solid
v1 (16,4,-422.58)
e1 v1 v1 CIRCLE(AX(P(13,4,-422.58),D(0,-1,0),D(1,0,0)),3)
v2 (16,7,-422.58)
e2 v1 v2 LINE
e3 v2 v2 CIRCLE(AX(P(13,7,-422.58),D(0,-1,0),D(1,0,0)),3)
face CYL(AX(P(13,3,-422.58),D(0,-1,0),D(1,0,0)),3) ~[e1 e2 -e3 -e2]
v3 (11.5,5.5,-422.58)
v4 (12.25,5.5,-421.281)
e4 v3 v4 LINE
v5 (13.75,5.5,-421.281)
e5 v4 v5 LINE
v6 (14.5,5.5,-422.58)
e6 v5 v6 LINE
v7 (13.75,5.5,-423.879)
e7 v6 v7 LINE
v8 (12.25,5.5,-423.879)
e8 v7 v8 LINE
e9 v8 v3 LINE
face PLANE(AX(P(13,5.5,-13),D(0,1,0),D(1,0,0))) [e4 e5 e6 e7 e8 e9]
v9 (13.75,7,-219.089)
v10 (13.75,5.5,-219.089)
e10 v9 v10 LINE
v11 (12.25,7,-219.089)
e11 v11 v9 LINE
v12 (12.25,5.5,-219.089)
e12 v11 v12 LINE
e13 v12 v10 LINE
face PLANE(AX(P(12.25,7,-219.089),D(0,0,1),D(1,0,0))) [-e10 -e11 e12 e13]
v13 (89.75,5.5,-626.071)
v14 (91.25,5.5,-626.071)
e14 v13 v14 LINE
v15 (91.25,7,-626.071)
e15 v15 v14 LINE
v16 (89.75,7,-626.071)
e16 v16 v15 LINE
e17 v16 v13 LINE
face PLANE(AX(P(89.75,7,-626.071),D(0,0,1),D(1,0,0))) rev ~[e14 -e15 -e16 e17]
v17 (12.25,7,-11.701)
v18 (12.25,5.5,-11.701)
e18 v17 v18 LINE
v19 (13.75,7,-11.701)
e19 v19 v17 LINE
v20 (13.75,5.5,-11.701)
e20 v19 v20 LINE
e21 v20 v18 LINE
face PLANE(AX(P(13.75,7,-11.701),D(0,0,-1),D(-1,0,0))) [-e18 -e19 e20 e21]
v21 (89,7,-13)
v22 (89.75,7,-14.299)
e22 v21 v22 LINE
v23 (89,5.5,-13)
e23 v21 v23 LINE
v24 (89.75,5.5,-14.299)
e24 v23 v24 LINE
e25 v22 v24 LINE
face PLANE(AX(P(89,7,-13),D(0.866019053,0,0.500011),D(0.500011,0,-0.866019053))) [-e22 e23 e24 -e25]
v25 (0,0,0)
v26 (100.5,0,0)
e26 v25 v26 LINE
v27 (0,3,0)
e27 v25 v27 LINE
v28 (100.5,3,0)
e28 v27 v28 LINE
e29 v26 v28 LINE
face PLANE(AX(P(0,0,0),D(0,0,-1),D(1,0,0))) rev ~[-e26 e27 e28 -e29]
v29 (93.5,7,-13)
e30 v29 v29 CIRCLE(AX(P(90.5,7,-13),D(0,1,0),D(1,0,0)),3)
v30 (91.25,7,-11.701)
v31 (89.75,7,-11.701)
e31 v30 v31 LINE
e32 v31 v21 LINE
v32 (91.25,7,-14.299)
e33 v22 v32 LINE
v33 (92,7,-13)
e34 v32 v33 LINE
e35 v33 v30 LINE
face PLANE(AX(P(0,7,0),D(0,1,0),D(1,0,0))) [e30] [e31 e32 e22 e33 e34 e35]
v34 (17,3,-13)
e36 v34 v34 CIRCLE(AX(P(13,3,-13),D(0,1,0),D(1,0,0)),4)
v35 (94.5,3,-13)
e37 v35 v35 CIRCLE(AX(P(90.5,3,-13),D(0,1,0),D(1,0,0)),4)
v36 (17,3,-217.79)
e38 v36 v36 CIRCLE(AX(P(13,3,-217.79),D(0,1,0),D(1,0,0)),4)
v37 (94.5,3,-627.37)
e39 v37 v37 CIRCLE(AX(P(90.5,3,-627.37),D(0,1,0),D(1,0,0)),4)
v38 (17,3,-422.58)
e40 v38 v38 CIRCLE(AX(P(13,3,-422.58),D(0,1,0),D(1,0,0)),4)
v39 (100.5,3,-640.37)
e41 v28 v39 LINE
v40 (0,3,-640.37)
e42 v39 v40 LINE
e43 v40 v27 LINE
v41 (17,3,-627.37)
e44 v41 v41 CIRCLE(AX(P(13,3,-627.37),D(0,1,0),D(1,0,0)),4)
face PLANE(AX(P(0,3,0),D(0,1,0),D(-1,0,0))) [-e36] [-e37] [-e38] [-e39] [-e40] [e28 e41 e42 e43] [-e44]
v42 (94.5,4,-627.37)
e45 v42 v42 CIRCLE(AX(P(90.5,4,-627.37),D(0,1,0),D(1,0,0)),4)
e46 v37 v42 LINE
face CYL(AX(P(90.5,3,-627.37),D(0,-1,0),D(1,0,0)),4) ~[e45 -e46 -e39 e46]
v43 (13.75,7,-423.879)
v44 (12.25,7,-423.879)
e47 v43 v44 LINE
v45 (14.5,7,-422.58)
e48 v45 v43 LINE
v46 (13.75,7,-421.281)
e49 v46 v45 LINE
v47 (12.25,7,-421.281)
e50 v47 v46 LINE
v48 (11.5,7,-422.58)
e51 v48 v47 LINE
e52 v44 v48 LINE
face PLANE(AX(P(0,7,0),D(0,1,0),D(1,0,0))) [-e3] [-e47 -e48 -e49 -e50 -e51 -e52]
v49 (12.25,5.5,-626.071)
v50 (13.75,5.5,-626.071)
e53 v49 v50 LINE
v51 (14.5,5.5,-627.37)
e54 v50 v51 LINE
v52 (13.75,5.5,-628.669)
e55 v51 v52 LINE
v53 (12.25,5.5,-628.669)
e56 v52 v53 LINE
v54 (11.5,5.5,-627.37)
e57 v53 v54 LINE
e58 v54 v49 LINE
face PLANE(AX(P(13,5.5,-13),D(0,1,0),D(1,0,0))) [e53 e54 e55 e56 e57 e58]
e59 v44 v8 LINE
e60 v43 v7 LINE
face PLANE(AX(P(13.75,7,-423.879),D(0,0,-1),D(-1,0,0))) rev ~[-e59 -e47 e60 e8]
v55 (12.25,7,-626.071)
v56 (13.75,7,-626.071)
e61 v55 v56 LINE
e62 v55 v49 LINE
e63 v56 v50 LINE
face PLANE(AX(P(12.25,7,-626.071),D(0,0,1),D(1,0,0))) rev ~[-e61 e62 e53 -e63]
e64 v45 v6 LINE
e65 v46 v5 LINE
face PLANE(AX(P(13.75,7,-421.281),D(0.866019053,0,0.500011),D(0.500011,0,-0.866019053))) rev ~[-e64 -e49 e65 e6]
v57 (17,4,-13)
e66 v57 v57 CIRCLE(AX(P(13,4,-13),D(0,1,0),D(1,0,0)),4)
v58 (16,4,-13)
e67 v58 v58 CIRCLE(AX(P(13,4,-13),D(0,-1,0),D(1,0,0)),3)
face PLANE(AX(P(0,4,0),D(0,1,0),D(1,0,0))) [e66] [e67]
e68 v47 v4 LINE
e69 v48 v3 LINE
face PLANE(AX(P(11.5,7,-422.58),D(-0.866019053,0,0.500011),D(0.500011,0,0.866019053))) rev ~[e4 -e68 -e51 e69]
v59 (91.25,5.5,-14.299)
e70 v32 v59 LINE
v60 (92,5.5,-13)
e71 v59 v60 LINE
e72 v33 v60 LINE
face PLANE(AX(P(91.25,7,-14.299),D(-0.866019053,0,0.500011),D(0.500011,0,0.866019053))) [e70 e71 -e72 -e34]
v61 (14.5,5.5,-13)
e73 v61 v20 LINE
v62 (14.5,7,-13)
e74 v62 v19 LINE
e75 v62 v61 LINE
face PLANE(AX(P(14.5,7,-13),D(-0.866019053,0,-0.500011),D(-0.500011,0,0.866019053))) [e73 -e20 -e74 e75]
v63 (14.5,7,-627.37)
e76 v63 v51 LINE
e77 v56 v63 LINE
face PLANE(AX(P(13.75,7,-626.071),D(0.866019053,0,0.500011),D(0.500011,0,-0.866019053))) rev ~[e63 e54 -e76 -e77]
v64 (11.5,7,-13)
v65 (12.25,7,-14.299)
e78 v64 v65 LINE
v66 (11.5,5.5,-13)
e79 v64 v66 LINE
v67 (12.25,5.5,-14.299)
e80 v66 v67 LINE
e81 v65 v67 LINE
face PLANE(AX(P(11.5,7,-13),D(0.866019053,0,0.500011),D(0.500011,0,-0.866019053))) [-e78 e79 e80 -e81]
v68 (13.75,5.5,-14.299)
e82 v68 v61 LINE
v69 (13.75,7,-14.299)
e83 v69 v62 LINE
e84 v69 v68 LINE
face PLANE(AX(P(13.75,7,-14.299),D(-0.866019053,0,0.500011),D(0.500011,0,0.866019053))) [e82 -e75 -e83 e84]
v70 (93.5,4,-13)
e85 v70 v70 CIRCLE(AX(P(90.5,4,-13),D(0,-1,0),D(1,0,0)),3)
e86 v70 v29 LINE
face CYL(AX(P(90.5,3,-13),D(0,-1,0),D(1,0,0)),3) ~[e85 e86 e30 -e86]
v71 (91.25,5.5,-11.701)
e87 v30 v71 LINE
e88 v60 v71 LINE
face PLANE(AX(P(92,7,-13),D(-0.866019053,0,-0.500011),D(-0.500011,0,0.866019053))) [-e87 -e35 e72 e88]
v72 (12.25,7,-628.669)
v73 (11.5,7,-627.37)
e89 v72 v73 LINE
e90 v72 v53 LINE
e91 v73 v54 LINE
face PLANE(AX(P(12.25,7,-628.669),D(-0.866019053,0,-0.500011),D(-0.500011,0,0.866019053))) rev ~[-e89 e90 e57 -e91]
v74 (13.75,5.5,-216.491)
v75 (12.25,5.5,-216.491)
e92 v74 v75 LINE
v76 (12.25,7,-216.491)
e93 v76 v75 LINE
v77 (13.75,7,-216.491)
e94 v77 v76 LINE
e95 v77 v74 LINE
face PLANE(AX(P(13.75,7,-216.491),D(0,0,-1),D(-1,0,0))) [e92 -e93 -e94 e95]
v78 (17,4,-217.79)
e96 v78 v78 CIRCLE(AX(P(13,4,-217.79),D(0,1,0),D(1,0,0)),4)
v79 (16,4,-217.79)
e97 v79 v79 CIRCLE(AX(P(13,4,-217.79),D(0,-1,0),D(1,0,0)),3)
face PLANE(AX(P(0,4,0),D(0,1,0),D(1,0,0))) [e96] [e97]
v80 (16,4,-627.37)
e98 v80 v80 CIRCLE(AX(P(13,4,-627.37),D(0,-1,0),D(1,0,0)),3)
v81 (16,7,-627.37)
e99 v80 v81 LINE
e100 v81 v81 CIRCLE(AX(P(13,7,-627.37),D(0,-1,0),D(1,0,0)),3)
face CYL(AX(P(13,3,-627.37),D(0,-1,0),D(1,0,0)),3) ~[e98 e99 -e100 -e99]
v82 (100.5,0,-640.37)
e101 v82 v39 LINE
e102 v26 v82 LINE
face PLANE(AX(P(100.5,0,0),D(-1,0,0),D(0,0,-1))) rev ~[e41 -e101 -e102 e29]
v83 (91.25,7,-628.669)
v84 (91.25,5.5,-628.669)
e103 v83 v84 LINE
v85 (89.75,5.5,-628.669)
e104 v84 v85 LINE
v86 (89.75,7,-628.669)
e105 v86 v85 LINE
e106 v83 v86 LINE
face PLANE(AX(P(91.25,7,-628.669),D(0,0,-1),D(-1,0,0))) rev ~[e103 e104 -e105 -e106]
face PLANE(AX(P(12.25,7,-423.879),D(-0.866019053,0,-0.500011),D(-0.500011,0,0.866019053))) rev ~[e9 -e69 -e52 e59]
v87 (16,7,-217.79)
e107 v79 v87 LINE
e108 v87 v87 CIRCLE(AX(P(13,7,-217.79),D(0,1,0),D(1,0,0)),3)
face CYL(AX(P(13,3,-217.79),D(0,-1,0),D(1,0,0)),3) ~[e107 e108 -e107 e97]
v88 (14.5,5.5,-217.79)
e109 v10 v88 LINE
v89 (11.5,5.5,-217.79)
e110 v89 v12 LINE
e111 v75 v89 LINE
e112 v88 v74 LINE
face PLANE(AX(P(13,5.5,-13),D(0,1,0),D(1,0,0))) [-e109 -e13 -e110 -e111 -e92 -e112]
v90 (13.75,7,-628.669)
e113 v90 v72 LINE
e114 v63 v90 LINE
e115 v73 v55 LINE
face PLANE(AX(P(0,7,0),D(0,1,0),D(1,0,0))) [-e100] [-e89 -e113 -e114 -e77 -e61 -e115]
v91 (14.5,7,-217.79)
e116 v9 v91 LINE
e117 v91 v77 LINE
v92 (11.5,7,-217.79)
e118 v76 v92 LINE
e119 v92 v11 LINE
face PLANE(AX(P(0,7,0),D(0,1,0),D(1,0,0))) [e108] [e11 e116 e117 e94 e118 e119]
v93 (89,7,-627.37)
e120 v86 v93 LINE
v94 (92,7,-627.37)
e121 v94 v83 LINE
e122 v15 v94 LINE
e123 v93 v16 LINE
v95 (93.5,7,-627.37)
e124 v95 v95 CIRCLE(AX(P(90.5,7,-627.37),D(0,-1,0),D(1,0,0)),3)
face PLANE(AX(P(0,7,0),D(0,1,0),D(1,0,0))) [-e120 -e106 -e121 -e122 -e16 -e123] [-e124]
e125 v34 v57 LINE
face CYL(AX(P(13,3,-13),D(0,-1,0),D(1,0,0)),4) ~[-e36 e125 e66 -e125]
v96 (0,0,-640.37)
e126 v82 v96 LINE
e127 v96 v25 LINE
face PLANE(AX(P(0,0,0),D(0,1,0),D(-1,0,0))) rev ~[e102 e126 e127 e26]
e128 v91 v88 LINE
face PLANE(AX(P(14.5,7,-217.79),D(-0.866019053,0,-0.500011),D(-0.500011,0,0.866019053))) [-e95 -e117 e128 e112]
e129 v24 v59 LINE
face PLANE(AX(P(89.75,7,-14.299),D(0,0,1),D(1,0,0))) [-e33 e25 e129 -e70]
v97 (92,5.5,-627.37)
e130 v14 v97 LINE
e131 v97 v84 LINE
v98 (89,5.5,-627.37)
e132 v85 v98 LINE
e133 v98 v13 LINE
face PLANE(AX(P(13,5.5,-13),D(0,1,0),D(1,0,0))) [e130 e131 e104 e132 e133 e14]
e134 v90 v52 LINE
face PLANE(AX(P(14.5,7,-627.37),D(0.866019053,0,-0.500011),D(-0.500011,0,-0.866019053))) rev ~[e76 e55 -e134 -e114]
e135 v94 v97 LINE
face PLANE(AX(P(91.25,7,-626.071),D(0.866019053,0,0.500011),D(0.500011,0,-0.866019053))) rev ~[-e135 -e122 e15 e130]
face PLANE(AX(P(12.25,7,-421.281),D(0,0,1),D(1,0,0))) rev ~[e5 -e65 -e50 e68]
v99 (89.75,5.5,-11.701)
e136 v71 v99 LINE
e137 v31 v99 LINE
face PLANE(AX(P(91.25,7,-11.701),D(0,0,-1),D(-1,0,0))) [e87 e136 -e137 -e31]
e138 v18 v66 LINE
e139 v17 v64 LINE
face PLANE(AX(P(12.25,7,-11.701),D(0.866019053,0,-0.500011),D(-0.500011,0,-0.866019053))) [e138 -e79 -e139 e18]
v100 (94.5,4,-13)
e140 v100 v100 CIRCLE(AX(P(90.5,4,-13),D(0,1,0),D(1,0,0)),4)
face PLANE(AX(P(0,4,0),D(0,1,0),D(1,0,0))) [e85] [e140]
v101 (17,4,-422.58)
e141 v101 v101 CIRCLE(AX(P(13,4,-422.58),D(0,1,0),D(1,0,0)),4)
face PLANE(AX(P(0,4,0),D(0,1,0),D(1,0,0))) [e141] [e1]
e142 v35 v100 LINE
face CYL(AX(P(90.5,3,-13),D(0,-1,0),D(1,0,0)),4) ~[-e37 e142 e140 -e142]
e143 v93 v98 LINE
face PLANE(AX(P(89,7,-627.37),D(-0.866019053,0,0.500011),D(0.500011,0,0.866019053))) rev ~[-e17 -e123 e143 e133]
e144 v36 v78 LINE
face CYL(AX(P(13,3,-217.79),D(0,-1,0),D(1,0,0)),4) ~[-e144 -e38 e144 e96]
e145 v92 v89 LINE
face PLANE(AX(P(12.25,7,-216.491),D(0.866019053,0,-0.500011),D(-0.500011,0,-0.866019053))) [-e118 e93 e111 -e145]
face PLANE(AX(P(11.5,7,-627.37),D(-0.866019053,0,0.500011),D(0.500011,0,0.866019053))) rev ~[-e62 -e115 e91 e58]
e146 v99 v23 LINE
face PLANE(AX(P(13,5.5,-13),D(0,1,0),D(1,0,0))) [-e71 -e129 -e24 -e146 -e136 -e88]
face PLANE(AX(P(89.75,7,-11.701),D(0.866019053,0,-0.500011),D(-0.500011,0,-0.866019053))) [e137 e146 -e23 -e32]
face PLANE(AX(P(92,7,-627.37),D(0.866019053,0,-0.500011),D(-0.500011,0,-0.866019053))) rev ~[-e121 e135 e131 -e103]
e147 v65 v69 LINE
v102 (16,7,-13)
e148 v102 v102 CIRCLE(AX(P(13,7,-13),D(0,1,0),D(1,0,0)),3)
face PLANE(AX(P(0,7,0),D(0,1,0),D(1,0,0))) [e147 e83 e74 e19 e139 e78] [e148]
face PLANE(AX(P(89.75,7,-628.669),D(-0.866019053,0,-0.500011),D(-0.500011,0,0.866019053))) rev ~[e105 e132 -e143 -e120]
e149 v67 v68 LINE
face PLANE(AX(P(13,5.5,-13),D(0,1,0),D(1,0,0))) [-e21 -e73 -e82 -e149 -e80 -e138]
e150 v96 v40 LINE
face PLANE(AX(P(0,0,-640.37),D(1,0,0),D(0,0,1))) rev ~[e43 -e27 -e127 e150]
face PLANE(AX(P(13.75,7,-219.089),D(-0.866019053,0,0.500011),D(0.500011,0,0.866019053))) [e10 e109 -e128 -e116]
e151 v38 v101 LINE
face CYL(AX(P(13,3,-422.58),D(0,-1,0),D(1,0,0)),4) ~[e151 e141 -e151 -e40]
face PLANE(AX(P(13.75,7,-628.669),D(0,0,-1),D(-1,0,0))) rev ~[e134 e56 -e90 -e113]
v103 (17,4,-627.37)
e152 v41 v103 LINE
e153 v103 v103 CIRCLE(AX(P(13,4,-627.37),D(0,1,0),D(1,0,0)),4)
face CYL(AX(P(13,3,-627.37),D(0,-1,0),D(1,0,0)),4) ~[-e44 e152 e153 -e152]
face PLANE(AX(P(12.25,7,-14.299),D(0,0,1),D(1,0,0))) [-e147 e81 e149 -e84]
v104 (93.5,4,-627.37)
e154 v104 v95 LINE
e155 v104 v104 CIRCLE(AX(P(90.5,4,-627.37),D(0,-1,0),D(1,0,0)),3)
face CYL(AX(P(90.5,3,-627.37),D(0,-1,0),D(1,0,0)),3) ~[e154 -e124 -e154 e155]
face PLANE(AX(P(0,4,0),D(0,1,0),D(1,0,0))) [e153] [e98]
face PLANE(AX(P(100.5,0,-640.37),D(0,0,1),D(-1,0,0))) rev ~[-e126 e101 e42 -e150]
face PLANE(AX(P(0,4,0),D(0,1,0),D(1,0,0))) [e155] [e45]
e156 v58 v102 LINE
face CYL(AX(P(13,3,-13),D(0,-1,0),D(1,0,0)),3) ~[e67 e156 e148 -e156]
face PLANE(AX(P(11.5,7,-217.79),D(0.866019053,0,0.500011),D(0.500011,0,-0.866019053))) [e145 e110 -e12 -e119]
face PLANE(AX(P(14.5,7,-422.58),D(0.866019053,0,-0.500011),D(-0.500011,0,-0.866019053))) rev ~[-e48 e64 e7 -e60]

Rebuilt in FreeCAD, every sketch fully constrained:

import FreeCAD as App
import Part
import Sketcher

V = App.Vector
Q = App.Units.Quantity

doc = App.newDocument("Part")
body = doc.addObject("PartDesign::Body", "Body")

sketch1 = body.newObject("Sketcher::SketchObject", "Sketch")
sketch1.AttachmentSupport = (doc.getObject("XZ_Plane"), [""])
sketch1.MapMode = "FlatFace"
sketch1.addGeometry([
    Part.LineSegment(V(0, -640, 0), V(0, 0, 0)),
    Part.LineSegment(V(0, 0, 0), V(100, 0, 0)),
    Part.LineSegment(V(100, 0, 0), V(100, -640, 0)),
    Part.LineSegment(V(100, -640, 0), V(0, -640, 0)),
], False)
sketch1.addConstraint([
    Sketcher.Constraint("Coincident", 0, 2, 1, 1),
    Sketcher.Constraint("Coincident", 1, 2, 2, 1),
    Sketcher.Constraint("Coincident", 2, 2, 3, 1),
    Sketcher.Constraint("Coincident", 3, 2, 0, 1),
    Sketcher.Constraint("Vertical", 0),
    Sketcher.Constraint("Horizontal", 1),
    Sketcher.Constraint("Vertical", 2),
    Sketcher.Constraint("Horizontal", 3),
    Sketcher.Constraint("Coincident", 0, 2, -1, 1),
    Sketcher.Constraint("DistanceX", 1, 1, 1, 2, Q("100.5 mm")),
    Sketcher.Constraint("DistanceY", 0, 1, 0, 2, Q("640.37 mm")),
])
pad1 = body.newObject("PartDesign::Pad", "Pad")
pad1.Profile = sketch1
pad1.Length = 3
pad1.Reversed = True

sketch2 = body.newObject("Sketcher::SketchObject", "Sketch001")
sketch2.AttachmentSupport = (doc.getObject("XZ_Plane"), [""])
sketch2.MapMode = "FlatFace"
sketch2.AttachmentOffset = App.Placement(V(0, 0, -3), App.Rotation())
sketch2.addGeometry([
    Part.Circle(V(13, -525, 0), V(0, 0, 1), 3),
    Part.Circle(V(13, -422.6, 0), V(0, 0, 1), 3),
    Part.Circle(V(13, -320.2, 0), V(0, 0, 1), 3),
    Part.Circle(V(13, -627.4, 0), V(0, 0, 1), 3),
    Part.Circle(V(90.5, -627.4, 0), V(0, 0, 1), 3),
    Part.Circle(V(13, -13, 0), V(0, 0, 1), 3),
    Part.Circle(V(90.5, -13, 0), V(0, 0, 1), 3),
    Part.Circle(V(13, -217.8, 0), V(0, 0, 1), 3),
    Part.Circle(V(13, -115.4, 0), V(0, 0, 1), 3),
], False)
sketch2.addConstraint([
    Sketcher.Constraint("Equal", 0, 1),
    Sketcher.Constraint("Equal", 1, 2),
    Sketcher.Constraint("Equal", 2, 3),
    Sketcher.Constraint("Equal", 3, 4),
    Sketcher.Constraint("Equal", 4, 5),
    Sketcher.Constraint("Equal", 5, 6),
    Sketcher.Constraint("Equal", 6, 7),
    Sketcher.Constraint("Equal", 7, 8),
    Sketcher.Constraint("Horizontal", 3, 3, 4, 3),
    Sketcher.Constraint("Horizontal", 5, 3, 6, 3),
    Sketcher.Constraint("Vertical", 0, 3, 1, 3),
    Sketcher.Constraint("Vertical", 1, 3, 2, 3),
    Sketcher.Constraint("Vertical", 2, 3, 3, 3),
    Sketcher.Constraint("Vertical", 3, 3, 5, 3),
    Sketcher.Constraint("Vertical", 4, 3, 6, 3),
    Sketcher.Constraint("Vertical", 5, 3, 7, 3),
    Sketcher.Constraint("Vertical", 7, 3, 8, 3),
    Sketcher.Constraint("Diameter", 0, Q("6 mm")),
    Sketcher.Constraint("DistanceX", -1, 1, 0, 3, Q("13 mm")),
    Sketcher.Constraint("DistanceY", 5, 3, -1, 1, Q("13 mm")),
    Sketcher.Constraint("DistanceY", 0, 3, 1, 3, Q("102.395 mm")),
    Sketcher.Constraint("DistanceY", 1, 3, 2, 3, Q("102.395 mm")),
    Sketcher.Constraint("DistanceY", 3, 3, 0, 3, Q("102.395 mm")),
    Sketcher.Constraint("DistanceY", 2, 3, 7, 3, Q("102.395 mm")),
    Sketcher.Constraint("DistanceY", 8, 3, 5, 3, Q("102.395 mm")),
    Sketcher.Constraint("DistanceY", 7, 3, 8, 3, Q("102.395 mm")),
    Sketcher.Constraint("DistanceX", -1, 1, 4, 3, Q("90.5 mm")),
])
pad2 = body.newObject("PartDesign::Pad", "Pad001")
pad2.Profile = sketch2
pad2.Length = 4
pad2.Reversed = True

sketch3 = body.newObject("Sketcher::SketchObject", "Sketch002")
sketch3.AttachmentSupport = (doc.getObject("XZ_Plane"), [""])
sketch3.MapMode = "FlatFace"
sketch3.AttachmentOffset = App.Placement(V(0, 0, -3), App.Rotation())
sketch3.addGeometry([
    Part.Circle(V(13, -13, 0), V(0, 0, 1), 4),
    Part.Circle(V(90.5, -13, 0), V(0, 0, 1), 4),
    Part.Circle(V(13, -115.4, 0), V(0, 0, 1), 4),
    Part.Circle(V(13, -217.8, 0), V(0, 0, 1), 4),
    Part.Circle(V(13, -320.2, 0), V(0, 0, 1), 4),
    Part.Circle(V(13, -627.4, 0), V(0, 0, 1), 4),
    Part.Circle(V(90.5, -627.4, 0), V(0, 0, 1), 4),
    Part.Circle(V(13, -525, 0), V(0, 0, 1), 4),
    Part.Circle(V(13, -422.6, 0), V(0, 0, 1), 4),
], False)
sketch3.addConstraint([
    Sketcher.Constraint("Equal", 0, 1),
    Sketcher.Constraint("Equal", 1, 2),
    Sketcher.Constraint("Equal", 2, 3),
    Sketcher.Constraint("Equal", 3, 4),
    Sketcher.Constraint("Equal", 4, 5),
    Sketcher.Constraint("Equal", 5, 6),
    Sketcher.Constraint("Equal", 6, 7),
    Sketcher.Constraint("Equal", 7, 8),
    Sketcher.Constraint("Horizontal", 0, 3, 1, 3),
    Sketcher.Constraint("Horizontal", 5, 3, 6, 3),
    Sketcher.Constraint("Vertical", 0, 3, 2, 3),
    Sketcher.Constraint("Vertical", 2, 3, 3, 3),
    Sketcher.Constraint("Vertical", 3, 3, 4, 3),
    Sketcher.Constraint("Vertical", 4, 3, 5, 3),
    Sketcher.Constraint("Vertical", 1, 3, 6, 3),
    Sketcher.Constraint("Vertical", 5, 3, 7, 3),
    Sketcher.Constraint("Vertical", 7, 3, 8, 3),
    Sketcher.Constraint("Diameter", 0, Q("8 mm")),
    Sketcher.Constraint("DistanceX", -1, 1, 0, 3, Q("13 mm")),
    Sketcher.Constraint("DistanceY", 0, 3, -1, 1, Q("13 mm")),
    Sketcher.Constraint("DistanceX", -1, 1, 1, 3, Q("90.5 mm")),
    Sketcher.Constraint("DistanceY", 3, 3, -1, 1, Q("217.79 mm")),
    Sketcher.Constraint("DistanceY", 5, 3, -1, 1, Q("627.37 mm")),
    Sketcher.Constraint("DistanceY", 8, 3, -1, 1, Q("422.58 mm")),
    Sketcher.Constraint("DistanceY", 4, 3, 2, 3, Q("204.79 mm")),
    Sketcher.Constraint("DistanceY", 7, 3, 4, 3, Q("204.79 mm")),
    Sketcher.Constraint("DistanceY", 2, 3, -1, 1, Q("115.395 mm")),
])
pad3 = body.newObject("PartDesign::Pad", "Pad002")
pad3.Profile = sketch3
pad3.Length = 1
pad3.Reversed = True

sketch4 = body.newObject("Sketcher::SketchObject", "Sketch003")
sketch4.AttachmentSupport = (doc.getObject("XZ_Plane"), [""])
sketch4.MapMode = "FlatFace"
sketch4.AttachmentOffset = App.Placement(V(0, 0, -7), App.Rotation())
sketch4.addGeometry([
    Part.LineSegment(V(13.8, -11.7, 0), V(14.5, -13, 0)),
    Part.LineSegment(V(14.5, -13, 0), V(13.8, -14.3, 0)),
    Part.LineSegment(V(13.8, -14.3, 0), V(12.2, -14.3, 0)),
    Part.LineSegment(V(12.2, -14.3, 0), V(11.5, -13, 0)),
    Part.LineSegment(V(11.5, -13, 0), V(12.2, -11.7, 0)),
    Part.LineSegment(V(12.2, -11.7, 0), V(13.8, -11.7, 0)),
    Part.LineSegment(V(91.2, -11.7, 0), V(92, -13, 0)),
    Part.LineSegment(V(92, -13, 0), V(91.2, -14.3, 0)),
    Part.LineSegment(V(91.2, -14.3, 0), V(89.8, -14.3, 0)),
    Part.LineSegment(V(89.8, -14.3, 0), V(89, -13, 0)),
    Part.LineSegment(V(89, -13, 0), V(89.8, -11.7, 0)),
    Part.LineSegment(V(89.8, -11.7, 0), V(91.2, -11.7, 0)),
    Part.LineSegment(V(13.8, -114.1, 0), V(14.5, -115.4, 0)),
    Part.LineSegment(V(14.5, -115.4, 0), V(13.8, -116.7, 0)),
    Part.LineSegment(V(13.8, -116.7, 0), V(12.2, -116.7, 0)),
    Part.LineSegment(V(12.2, -116.7, 0), V(11.5, -115.4, 0)),
    Part.LineSegment(V(11.5, -115.4, 0), V(12.2, -114.1, 0)),
    Part.LineSegment(V(12.2, -114.1, 0), V(13.8, -114.1, 0)),
    Part.LineSegment(V(13.8, -216.5, 0), V(14.5, -217.8, 0)),
    Part.LineSegment(V(14.5, -217.8, 0), V(13.8, -219.1, 0)),
    Part.LineSegment(V(13.8, -219.1, 0), V(12.2, -219.1, 0)),
    Part.LineSegment(V(12.2, -219.1, 0), V(11.5, -217.8, 0)),
    Part.LineSegment(V(11.5, -217.8, 0), V(12.2, -216.5, 0)),
    Part.LineSegment(V(12.2, -216.5, 0), V(13.8, -216.5, 0)),
    Part.LineSegment(V(13.8, -318.9, 0), V(14.5, -320.2, 0)),
    Part.LineSegment(V(14.5, -320.2, 0), V(13.8, -321.5, 0)),
    Part.LineSegment(V(13.8, -321.5, 0), V(12.2, -321.5, 0)),
    Part.LineSegment(V(12.2, -321.5, 0), V(11.5, -320.2, 0)),
    Part.LineSegment(V(11.5, -320.2, 0), V(12.2, -318.9, 0)),
    Part.LineSegment(V(12.2, -318.9, 0), V(13.8, -318.9, 0)),
    Part.LineSegment(V(13.8, -626.1, 0), V(14.5, -627.4, 0)),
    Part.LineSegment(V(14.5, -627.4, 0), V(13.8, -628.7, 0)),
    Part.LineSegment(V(13.8, -628.7, 0), V(12.2, -628.7, 0)),
    Part.LineSegment(V(12.2, -628.7, 0), V(11.5, -627.4, 0)),
    Part.LineSegment(V(11.5, -627.4, 0), V(12.2, -626.1, 0)),
    Part.LineSegment(V(12.2, -626.1, 0), V(13.8, -626.1, 0)),
    Part.LineSegment(V(91.2, -626.1, 0), V(92, -627.4, 0)),
    Part.LineSegment(V(92, -627.4, 0), V(91.2, -628.7, 0)),
    Part.LineSegment(V(91.2, -628.7, 0), V(89.8, -628.7, 0)),
    Part.LineSegment(V(89.8, -628.7, 0), V(89, -627.4, 0)),
    Part.LineSegment(V(89, -627.4, 0), V(89.8, -626.1, 0)),
    Part.LineSegment(V(89.8, -626.1, 0), V(91.2, -626.1, 0)),
    Part.LineSegment(V(13.8, -523.7, 0), V(14.5, -525, 0)),
    Part.LineSegment(V(14.5, -525, 0), V(13.8, -526.3, 0)),
    Part.LineSegment(V(13.8, -526.3, 0), V(12.2, -526.3, 0)),
    Part.LineSegment(V(12.2, -526.3, 0), V(11.5, -525, 0)),
    Part.LineSegment(V(11.5, -525, 0), V(12.2, -523.7, 0)),
    Part.LineSegment(V(12.2, -523.7, 0), V(13.8, -523.7, 0)),
    Part.LineSegment(V(13.8, -421.3, 0), V(14.5, -422.6, 0)),
    Part.LineSegment(V(14.5, -422.6, 0), V(13.8, -423.9, 0)),
    Part.LineSegment(V(13.8, -423.9, 0), V(12.2, -423.9, 0)),
    Part.LineSegment(V(12.2, -423.9, 0), V(11.5, -422.6, 0)),
    Part.LineSegment(V(11.5, -422.6, 0), V(12.2, -421.3, 0)),
    Part.LineSegment(V(12.2, -421.3, 0), V(13.8, -421.3, 0)),
], False)
sketch4.addConstraint([
    Sketcher.Constraint("Coincident", 0, 2, 1, 1),
    Sketcher.Constraint("Coincident", 1, 2, 2, 1),
    Sketcher.Constraint("Coincident", 2, 2, 3, 1),
    Sketcher.Constraint("Coincident", 3, 2, 4, 1),
    Sketcher.Constraint("Coincident", 4, 2, 5, 1),
    Sketcher.Constraint("Coincident", 5, 2, 0, 1),
    Sketcher.Constraint("Coincident", 6, 2, 7, 1),
    Sketcher.Constraint("Coincident", 7, 2, 8, 1),
    Sketcher.Constraint("Coincident", 8, 2, 9, 1),
    Sketcher.Constraint("Coincident", 9, 2, 10, 1),
    Sketcher.Constraint("Coincident", 10, 2, 11, 1),
    Sketcher.Constraint("Coincident", 11, 2, 6, 1),
    Sketcher.Constraint("Coincident", 12, 2, 13, 1),
    Sketcher.Constraint("Coincident", 13, 2, 14, 1),
    Sketcher.Constraint("Coincident", 14, 2, 15, 1),
    Sketcher.Constraint("Coincident", 15, 2, 16, 1),
    Sketcher.Constraint("Coincident", 16, 2, 17, 1),
    Sketcher.Constraint("Coincident", 17, 2, 12, 1),
    Sketcher.Constraint("Coincident", 18, 2, 19, 1),
    Sketcher.Constraint("Coincident", 19, 2, 20, 1),
    Sketcher.Constraint("Coincident", 20, 2, 21, 1),
    Sketcher.Constraint("Coincident", 21, 2, 22, 1),
    Sketcher.Constraint("Coincident", 22, 2, 23, 1),
    Sketcher.Constraint("Coincident", 23, 2, 18, 1),
    Sketcher.Constraint("Coincident", 24, 2, 25, 1),
    Sketcher.Constraint("Coincident", 25, 2, 26, 1),
    Sketcher.Constraint("Coincident", 26, 2, 27, 1),
    Sketcher.Constraint("Coincident", 27, 2, 28, 1),
    Sketcher.Constraint("Coincident", 28, 2, 29, 1),
    Sketcher.Constraint("Coincident", 29, 2, 24, 1),
    Sketcher.Constraint("Coincident", 30, 2, 31, 1),
    Sketcher.Constraint("Coincident", 31, 2, 32, 1),
    Sketcher.Constraint("Coincident", 32, 2, 33, 1),
    Sketcher.Constraint("Coincident", 33, 2, 34, 1),
    Sketcher.Constraint("Coincident", 34, 2, 35, 1),
    Sketcher.Constraint("Coincident", 35, 2, 30, 1),
    Sketcher.Constraint("Coincident", 36, 2, 37, 1),
    Sketcher.Constraint("Coincident", 37, 2, 38, 1),
    Sketcher.Constraint("Coincident", 38, 2, 39, 1),
    Sketcher.Constraint("Coincident", 39, 2, 40, 1),
    Sketcher.Constraint("Coincident", 40, 2, 41, 1),
    Sketcher.Constraint("Coincident", 41, 2, 36, 1),
    Sketcher.Constraint("Coincident", 42, 2, 43, 1),
    Sketcher.Constraint("Coincident", 43, 2, 44, 1),
    Sketcher.Constraint("Coincident", 44, 2, 45, 1),
    Sketcher.Constraint("Coincident", 45, 2, 46, 1),
    Sketcher.Constraint("Coincident", 46, 2, 47, 1),
    Sketcher.Constraint("Coincident", 47, 2, 42, 1),
    Sketcher.Constraint("Coincident", 48, 2, 49, 1),
    Sketcher.Constraint("Coincident", 49, 2, 50, 1),
    Sketcher.Constraint("Coincident", 50, 2, 51, 1),
    Sketcher.Constraint("Coincident", 51, 2, 52, 1),
    Sketcher.Constraint("Coincident", 52, 2, 53, 1),
    Sketcher.Constraint("Coincident", 53, 2, 48, 1),
    Sketcher.Constraint("Horizontal", 2),
    Sketcher.Constraint("Horizontal", 5),
    Sketcher.Constraint("Horizontal", 8),
    Sketcher.Constraint("Horizontal", 11),
    Sketcher.Constraint("Horizontal", 14),
    Sketcher.Constraint("Horizontal", 17),
    Sketcher.Constraint("Horizontal", 20),
    Sketcher.Constraint("Horizontal", 23),
    Sketcher.Constraint("Horizontal", 26),
    Sketcher.Constraint("Horizontal", 29),
    Sketcher.Constraint("Horizontal", 32),
    Sketcher.Constraint("Horizontal", 35),
    Sketcher.Constraint("Horizontal", 38),
    Sketcher.Constraint("Horizontal", 41),
    Sketcher.Constraint("Horizontal", 44),
    Sketcher.Constraint("Horizontal", 47),
    Sketcher.Constraint("Horizontal", 50),
    Sketcher.Constraint("Horizontal", 53),
    Sketcher.Constraint("Parallel", 0, 3),
    Sketcher.Constraint("Parallel", 1, 4),
    Sketcher.Constraint("Parallel", 3, 6),
    Sketcher.Constraint("Parallel", 4, 7),
    Sketcher.Constraint("Parallel", 6, 9),
    Sketcher.Constraint("Parallel", 7, 10),
    Sketcher.Constraint("Parallel", 9, 12),
    Sketcher.Constraint("Parallel", 10, 13),
    Sketcher.Constraint("Parallel", 12, 15),
    Sketcher.Constraint("Parallel", 13, 16),
    Sketcher.Constraint("Parallel", 15, 18),
    Sketcher.Constraint("Parallel", 16, 19),
    Sketcher.Constraint("Parallel", 18, 21),
    Sketcher.Constraint("Parallel", 19, 22),
    Sketcher.Constraint("Parallel", 21, 24),
    Sketcher.Constraint("Parallel", 22, 25),
    Sketcher.Constraint("Parallel", 24, 27),
    Sketcher.Constraint("Parallel", 25, 28),
    Sketcher.Constraint("Parallel", 27, 30),
    Sketcher.Constraint("Parallel", 28, 31),
    Sketcher.Constraint("Parallel", 30, 33),
    Sketcher.Constraint("Parallel", 31, 34),
    Sketcher.Constraint("Parallel", 33, 36),
    Sketcher.Constraint("Parallel", 34, 37),
    Sketcher.Constraint("Parallel", 36, 39),
    Sketcher.Constraint("Parallel", 37, 40),
    Sketcher.Constraint("Parallel", 39, 42),
    Sketcher.Constraint("Parallel", 40, 43),
    Sketcher.Constraint("Parallel", 42, 45),
    Sketcher.Constraint("Parallel", 43, 46),
    Sketcher.Constraint("Parallel", 45, 48),
    Sketcher.Constraint("Parallel", 46, 49),
    Sketcher.Constraint("Parallel", 48, 51),
    Sketcher.Constraint("Parallel", 49, 52),
    Sketcher.Constraint("Horizontal", 0, 2, 3, 2),
    Sketcher.Constraint("Horizontal", 3, 2, 6, 2),
    Sketcher.Constraint("Horizontal", 2, 2, 7, 2),
    Sketcher.Constraint("Horizontal", 6, 2, 9, 2),
    Sketcher.Constraint("Horizontal", 5, 2, 10, 2),
    Sketcher.Constraint("Horizontal", 12, 2, 15, 2),
    Sketcher.Constraint("Horizontal", 18, 2, 21, 2),
    Sketcher.Constraint("Horizontal", 24, 2, 27, 2),
    Sketcher.Constraint("Horizontal", 30, 2, 33, 2),
    Sketcher.Constraint("Horizontal", 33, 2, 36, 2),
    Sketcher.Constraint("Horizontal", 32, 2, 37, 2),
    Sketcher.Constraint("Horizontal", 36, 2, 39, 2),
    Sketcher.Constraint("Horizontal", 35, 2, 40, 2),
    Sketcher.Constraint("Horizontal", 42, 2, 45, 2),
    Sketcher.Constraint("Horizontal", 48, 2, 51, 2),
    Sketcher.Constraint("Vertical", 2, 2, 4, 2),
    Sketcher.Constraint("Vertical", 1, 2, 5, 2),
    Sketcher.Constraint("Vertical", 0, 2, 12, 2),
    Sketcher.Constraint("Vertical", 5, 2, 13, 2),
    Sketcher.Constraint("Vertical", 4, 2, 14, 2),
    Sketcher.Constraint("Vertical", 14, 2, 16, 2),
    Sketcher.Constraint("Vertical", 12, 2, 18, 2),
    Sketcher.Constraint("Vertical", 17, 2, 19, 2),
    Sketcher.Constraint("Vertical", 16, 2, 20, 2),
    Sketcher.Constraint("Vertical", 20, 2, 22, 2),
    Sketcher.Constraint("Vertical", 18, 2, 24, 2),
    Sketcher.Constraint("Vertical", 23, 2, 25, 2),
    Sketcher.Constraint("Vertical", 22, 2, 26, 2),
    Sketcher.Constraint("Vertical", 26, 2, 28, 2),
    Sketcher.Constraint("Vertical", 24, 2, 30, 2),
    Sketcher.Constraint("Vertical", 29, 2, 31, 2),
    Sketcher.Constraint("Vertical", 28, 2, 32, 2),
    Sketcher.Constraint("Vertical", 32, 2, 34, 2),
    Sketcher.Constraint("Vertical", 6, 2, 36, 2),
    Sketcher.Constraint("Vertical", 10, 2, 38, 2),
    Sketcher.Constraint("Vertical", 30, 2, 42, 2),
    Sketcher.Constraint("Vertical", 35, 2, 43, 2),
    Sketcher.Constraint("Vertical", 34, 2, 44, 2),
    Sketcher.Constraint("Vertical", 44, 2, 46, 2),
    Sketcher.Constraint("Vertical", 42, 2, 48, 2),
    Sketcher.Constraint("Vertical", 47, 2, 49, 2),
    Sketcher.Constraint("Vertical", 46, 2, 50, 2),
    Sketcher.Constraint("Vertical", 50, 2, 52, 2),
    Sketcher.Constraint("Equal", 5, 8),
    Sketcher.Constraint("DistanceX", 2, 2, 2, 1, Q("1.5 mm")),
    Sketcher.Constraint("Distance", 0, Q("1.5 mm")),
    Sketcher.Constraint("Angle", 0, Q("-59.9993 deg")),
    Sketcher.Constraint("DistanceY", 0, 2, -1, 1, Q("13 mm")),
    Sketcher.Constraint("DistanceX", -1, 1, 6, 2, Q("92 mm")),
    Sketcher.Constraint("DistanceX", 2, 2, 7, 2, Q("79 mm")),
    Sketcher.Constraint("DistanceY", 18, 2, -1, 1, Q("217.79 mm")),
    Sketcher.Constraint("DistanceY", 30, 2, -1, 1, Q("627.37 mm")),
    Sketcher.Constraint("DistanceY", 48, 2, -1, 1, Q("422.58 mm")),
    Sketcher.Constraint("DistanceY", 12, 2, -1, 1, Q("115.395 mm")),
    Sketcher.Constraint("DistanceY", 24, 2, -1, 1, Q("320.185 mm")),
    Sketcher.Constraint("DistanceY", 42, 2, -1, 1, Q("524.975 mm")),
])
pocket1 = body.newObject("PartDesign::Pocket", "Pocket")
pocket1.Profile = sketch4
pocket1.Length = 1.5
pocket1.Reversed = True

sketch5 = body.newObject("Sketcher::SketchObject", "Sketch004")
sketch5.AttachmentSupport = (doc.getObject("XZ_Plane"), [""])
sketch5.MapMode = "FlatFace"
sketch5.AttachmentOffset = App.Placement(V(0, 0, -3), App.Rotation())
sketch5.addGeometry([
    Part.LineSegment(V(5, -131, 0), V(5, -103, 0)),
    Part.LineSegment(V(5, -103, 0), V(23, -103, 0)),
    Part.LineSegment(V(23, -103, 0), V(23, -131, 0)),
    Part.LineSegment(V(23, -131, 0), V(5, -131, 0)),
    Part.LineSegment(V(5, -338, 0), V(5, -311, 0)),
    Part.LineSegment(V(5, -311, 0), V(23, -311, 0)),
    Part.LineSegment(V(23, -311, 0), V(23, -338, 0)),
    Part.LineSegment(V(23, -338, 0), V(5, -338, 0)),
    Part.LineSegment(V(5, -537, 0), V(5, -513, 0)),
    Part.LineSegment(V(5, -513, 0), V(23, -513, 0)),
    Part.LineSegment(V(23, -513, 0), V(23, -537, 0)),
    Part.LineSegment(V(23, -537, 0), V(5, -537, 0)),
], False)
sketch5.addConstraint([
    Sketcher.Constraint("Coincident", 0, 2, 1, 1),
    Sketcher.Constraint("Coincident", 1, 2, 2, 1),
    Sketcher.Constraint("Coincident", 2, 2, 3, 1),
    Sketcher.Constraint("Coincident", 3, 2, 0, 1),
    Sketcher.Constraint("Coincident", 4, 2, 5, 1),
    Sketcher.Constraint("Coincident", 5, 2, 6, 1),
    Sketcher.Constraint("Coincident", 6, 2, 7, 1),
    Sketcher.Constraint("Coincident", 7, 2, 4, 1),
    Sketcher.Constraint("Coincident", 8, 2, 9, 1),
    Sketcher.Constraint("Coincident", 9, 2, 10, 1),
    Sketcher.Constraint("Coincident", 10, 2, 11, 1),
    Sketcher.Constraint("Coincident", 11, 2, 8, 1),
    Sketcher.Constraint("Vertical", 0),
    Sketcher.Constraint("Horizontal", 1),
    Sketcher.Constraint("Vertical", 2),
    Sketcher.Constraint("Horizontal", 3),
    Sketcher.Constraint("Vertical", 4),
    Sketcher.Constraint("Horizontal", 5),
    Sketcher.Constraint("Vertical", 6),
    Sketcher.Constraint("Horizontal", 7),
    Sketcher.Constraint("Vertical", 8),
    Sketcher.Constraint("Horizontal", 9),
    Sketcher.Constraint("Vertical", 10),
    Sketcher.Constraint("Horizontal", 11),
    Sketcher.Constraint("Vertical", 3, 2, 4, 2),
    Sketcher.Constraint("Vertical", 2, 2, 5, 2),
    Sketcher.Constraint("Vertical", 7, 2, 8, 2),
    Sketcher.Constraint("Vertical", 6, 2, 9, 2),
    Sketcher.Constraint("DistanceY", 4, 1, 4, 2, Q("26.755 mm")),
    Sketcher.Constraint("DistanceX", 1, 1, 1, 2, Q("18.9242 mm")),
    Sketcher.Constraint("DistanceY", 0, 1, 0, 2, Q("27.4074 mm")),
    Sketcher.Constraint("DistanceY", 8, 1, 8, 2, Q("24.7972 mm")),
    Sketcher.Constraint("DistanceX", -1, 1, 0, 2, Q("4.568 mm")),
    Sketcher.Constraint("DistanceY", 2, 2, -1, 1, Q("130.838 mm")),
    Sketcher.Constraint("DistanceY", 8, 2, -1, 1, Q("512.585 mm")),
    Sketcher.Constraint("DistanceY", 10, 2, 6, 2, Q("199.683 mm")),
])
pocket2 = body.newObject("PartDesign::Pocket", "Pocket001")
pocket2.Profile = sketch5
pocket2.Length = 5

doc.recompute()
